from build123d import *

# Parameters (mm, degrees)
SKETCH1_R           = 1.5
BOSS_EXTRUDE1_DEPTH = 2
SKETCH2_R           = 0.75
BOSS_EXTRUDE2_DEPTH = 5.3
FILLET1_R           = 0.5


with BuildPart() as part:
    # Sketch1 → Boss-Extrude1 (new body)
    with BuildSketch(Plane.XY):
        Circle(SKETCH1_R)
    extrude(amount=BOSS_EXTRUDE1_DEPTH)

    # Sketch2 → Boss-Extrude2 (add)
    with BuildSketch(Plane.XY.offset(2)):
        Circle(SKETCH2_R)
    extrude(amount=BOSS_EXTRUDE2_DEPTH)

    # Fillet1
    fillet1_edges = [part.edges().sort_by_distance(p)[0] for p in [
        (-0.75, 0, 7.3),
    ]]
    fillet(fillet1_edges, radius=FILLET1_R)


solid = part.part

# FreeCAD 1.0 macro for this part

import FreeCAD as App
import Part
import Sketcher

V = App.Vector
Q = App.Units.Quantity


def edges_at(feature, points):
    """Names of the edges that pass closest to the given points."""
    edges = feature.Shape.Edges
    near = lambda p: min(range(len(edges)), key=lambda i: edges[i].distToShape(Part.Vertex(*p))[0])
    return sorted({f"Edge{near(p) + 1}" for p in points})

doc = App.newDocument("Part")
params = doc.addObject("Spreadsheet::Sheet", "Params")
for row, (alias, value) in enumerate([
    ("sketch1_diameter", "3 mm"),
    ("pad1_length", "2 mm"),
    ("sketch2_diameter", "1.5 mm"),
    ("pad2_length", "5.3 mm"),
    ("fillet_radius", "0.5 mm"),
], start=1):
    params.set(f"A{row}", alias)
    params.set(f"B{row}", "=" + value)
    params.setAlias(f"B{row}", alias)

body = doc.addObject("PartDesign::Body", "Body")

# Sketch on XY plane
sketch1 = body.newObject("Sketcher::SketchObject", "Sketch")
sketch1.AttachmentSupport = (doc.getObject("XY_Plane"), [""])
sketch1.MapMode = "FlatFace"
sketch1.addGeometry(Part.Circle(V(0, 0, 0), V(0, 0, 1), 1.5), False)
sketch1.addConstraint([
    Sketcher.Constraint("Coincident", 0, 3, -1, 1),
    Sketcher.Constraint("Diameter", 0, Q("3 mm")),
])
sketch1.setExpression("Constraints[1]", "Params.sketch1_diameter")
pad1 = body.newObject("PartDesign::Pad", "Pad")
pad1.Profile = sketch1
pad1.setExpression("Length", "Params.pad1_length")

# Sketch on XY plane
sketch2 = body.newObject("Sketcher::SketchObject", "Sketch001")
sketch2.AttachmentSupport = (doc.getObject("XY_Plane"), [""])
sketch2.MapMode = "FlatFace"
sketch2.AttachmentOffset = App.Placement(V(0, 0, 2), App.Rotation())
sketch2.addGeometry(Part.Circle(V(0, 0, 0), V(0, 0, 1), 0.8), False)
sketch2.addConstraint([
    Sketcher.Constraint("Coincident", 0, 3, -1, 1),
    Sketcher.Constraint("Diameter", 0, Q("1.5 mm")),
])
sketch2.setExpression("Constraints[1]", "Params.sketch2_diameter")
pad2 = body.newObject("PartDesign::Pad", "Pad001")
pad2.Profile = sketch2
pad2.setExpression("Length", "Params.pad2_length")
doc.recompute()

fillet = body.newObject("PartDesign::Fillet", "Fillet")
fillet.Base = (pad2, edges_at(pad2, [(-0.75, 0, 7.3)]))
fillet.setExpression("Radius", "Params.fillet_radius")

doc.recompute()
